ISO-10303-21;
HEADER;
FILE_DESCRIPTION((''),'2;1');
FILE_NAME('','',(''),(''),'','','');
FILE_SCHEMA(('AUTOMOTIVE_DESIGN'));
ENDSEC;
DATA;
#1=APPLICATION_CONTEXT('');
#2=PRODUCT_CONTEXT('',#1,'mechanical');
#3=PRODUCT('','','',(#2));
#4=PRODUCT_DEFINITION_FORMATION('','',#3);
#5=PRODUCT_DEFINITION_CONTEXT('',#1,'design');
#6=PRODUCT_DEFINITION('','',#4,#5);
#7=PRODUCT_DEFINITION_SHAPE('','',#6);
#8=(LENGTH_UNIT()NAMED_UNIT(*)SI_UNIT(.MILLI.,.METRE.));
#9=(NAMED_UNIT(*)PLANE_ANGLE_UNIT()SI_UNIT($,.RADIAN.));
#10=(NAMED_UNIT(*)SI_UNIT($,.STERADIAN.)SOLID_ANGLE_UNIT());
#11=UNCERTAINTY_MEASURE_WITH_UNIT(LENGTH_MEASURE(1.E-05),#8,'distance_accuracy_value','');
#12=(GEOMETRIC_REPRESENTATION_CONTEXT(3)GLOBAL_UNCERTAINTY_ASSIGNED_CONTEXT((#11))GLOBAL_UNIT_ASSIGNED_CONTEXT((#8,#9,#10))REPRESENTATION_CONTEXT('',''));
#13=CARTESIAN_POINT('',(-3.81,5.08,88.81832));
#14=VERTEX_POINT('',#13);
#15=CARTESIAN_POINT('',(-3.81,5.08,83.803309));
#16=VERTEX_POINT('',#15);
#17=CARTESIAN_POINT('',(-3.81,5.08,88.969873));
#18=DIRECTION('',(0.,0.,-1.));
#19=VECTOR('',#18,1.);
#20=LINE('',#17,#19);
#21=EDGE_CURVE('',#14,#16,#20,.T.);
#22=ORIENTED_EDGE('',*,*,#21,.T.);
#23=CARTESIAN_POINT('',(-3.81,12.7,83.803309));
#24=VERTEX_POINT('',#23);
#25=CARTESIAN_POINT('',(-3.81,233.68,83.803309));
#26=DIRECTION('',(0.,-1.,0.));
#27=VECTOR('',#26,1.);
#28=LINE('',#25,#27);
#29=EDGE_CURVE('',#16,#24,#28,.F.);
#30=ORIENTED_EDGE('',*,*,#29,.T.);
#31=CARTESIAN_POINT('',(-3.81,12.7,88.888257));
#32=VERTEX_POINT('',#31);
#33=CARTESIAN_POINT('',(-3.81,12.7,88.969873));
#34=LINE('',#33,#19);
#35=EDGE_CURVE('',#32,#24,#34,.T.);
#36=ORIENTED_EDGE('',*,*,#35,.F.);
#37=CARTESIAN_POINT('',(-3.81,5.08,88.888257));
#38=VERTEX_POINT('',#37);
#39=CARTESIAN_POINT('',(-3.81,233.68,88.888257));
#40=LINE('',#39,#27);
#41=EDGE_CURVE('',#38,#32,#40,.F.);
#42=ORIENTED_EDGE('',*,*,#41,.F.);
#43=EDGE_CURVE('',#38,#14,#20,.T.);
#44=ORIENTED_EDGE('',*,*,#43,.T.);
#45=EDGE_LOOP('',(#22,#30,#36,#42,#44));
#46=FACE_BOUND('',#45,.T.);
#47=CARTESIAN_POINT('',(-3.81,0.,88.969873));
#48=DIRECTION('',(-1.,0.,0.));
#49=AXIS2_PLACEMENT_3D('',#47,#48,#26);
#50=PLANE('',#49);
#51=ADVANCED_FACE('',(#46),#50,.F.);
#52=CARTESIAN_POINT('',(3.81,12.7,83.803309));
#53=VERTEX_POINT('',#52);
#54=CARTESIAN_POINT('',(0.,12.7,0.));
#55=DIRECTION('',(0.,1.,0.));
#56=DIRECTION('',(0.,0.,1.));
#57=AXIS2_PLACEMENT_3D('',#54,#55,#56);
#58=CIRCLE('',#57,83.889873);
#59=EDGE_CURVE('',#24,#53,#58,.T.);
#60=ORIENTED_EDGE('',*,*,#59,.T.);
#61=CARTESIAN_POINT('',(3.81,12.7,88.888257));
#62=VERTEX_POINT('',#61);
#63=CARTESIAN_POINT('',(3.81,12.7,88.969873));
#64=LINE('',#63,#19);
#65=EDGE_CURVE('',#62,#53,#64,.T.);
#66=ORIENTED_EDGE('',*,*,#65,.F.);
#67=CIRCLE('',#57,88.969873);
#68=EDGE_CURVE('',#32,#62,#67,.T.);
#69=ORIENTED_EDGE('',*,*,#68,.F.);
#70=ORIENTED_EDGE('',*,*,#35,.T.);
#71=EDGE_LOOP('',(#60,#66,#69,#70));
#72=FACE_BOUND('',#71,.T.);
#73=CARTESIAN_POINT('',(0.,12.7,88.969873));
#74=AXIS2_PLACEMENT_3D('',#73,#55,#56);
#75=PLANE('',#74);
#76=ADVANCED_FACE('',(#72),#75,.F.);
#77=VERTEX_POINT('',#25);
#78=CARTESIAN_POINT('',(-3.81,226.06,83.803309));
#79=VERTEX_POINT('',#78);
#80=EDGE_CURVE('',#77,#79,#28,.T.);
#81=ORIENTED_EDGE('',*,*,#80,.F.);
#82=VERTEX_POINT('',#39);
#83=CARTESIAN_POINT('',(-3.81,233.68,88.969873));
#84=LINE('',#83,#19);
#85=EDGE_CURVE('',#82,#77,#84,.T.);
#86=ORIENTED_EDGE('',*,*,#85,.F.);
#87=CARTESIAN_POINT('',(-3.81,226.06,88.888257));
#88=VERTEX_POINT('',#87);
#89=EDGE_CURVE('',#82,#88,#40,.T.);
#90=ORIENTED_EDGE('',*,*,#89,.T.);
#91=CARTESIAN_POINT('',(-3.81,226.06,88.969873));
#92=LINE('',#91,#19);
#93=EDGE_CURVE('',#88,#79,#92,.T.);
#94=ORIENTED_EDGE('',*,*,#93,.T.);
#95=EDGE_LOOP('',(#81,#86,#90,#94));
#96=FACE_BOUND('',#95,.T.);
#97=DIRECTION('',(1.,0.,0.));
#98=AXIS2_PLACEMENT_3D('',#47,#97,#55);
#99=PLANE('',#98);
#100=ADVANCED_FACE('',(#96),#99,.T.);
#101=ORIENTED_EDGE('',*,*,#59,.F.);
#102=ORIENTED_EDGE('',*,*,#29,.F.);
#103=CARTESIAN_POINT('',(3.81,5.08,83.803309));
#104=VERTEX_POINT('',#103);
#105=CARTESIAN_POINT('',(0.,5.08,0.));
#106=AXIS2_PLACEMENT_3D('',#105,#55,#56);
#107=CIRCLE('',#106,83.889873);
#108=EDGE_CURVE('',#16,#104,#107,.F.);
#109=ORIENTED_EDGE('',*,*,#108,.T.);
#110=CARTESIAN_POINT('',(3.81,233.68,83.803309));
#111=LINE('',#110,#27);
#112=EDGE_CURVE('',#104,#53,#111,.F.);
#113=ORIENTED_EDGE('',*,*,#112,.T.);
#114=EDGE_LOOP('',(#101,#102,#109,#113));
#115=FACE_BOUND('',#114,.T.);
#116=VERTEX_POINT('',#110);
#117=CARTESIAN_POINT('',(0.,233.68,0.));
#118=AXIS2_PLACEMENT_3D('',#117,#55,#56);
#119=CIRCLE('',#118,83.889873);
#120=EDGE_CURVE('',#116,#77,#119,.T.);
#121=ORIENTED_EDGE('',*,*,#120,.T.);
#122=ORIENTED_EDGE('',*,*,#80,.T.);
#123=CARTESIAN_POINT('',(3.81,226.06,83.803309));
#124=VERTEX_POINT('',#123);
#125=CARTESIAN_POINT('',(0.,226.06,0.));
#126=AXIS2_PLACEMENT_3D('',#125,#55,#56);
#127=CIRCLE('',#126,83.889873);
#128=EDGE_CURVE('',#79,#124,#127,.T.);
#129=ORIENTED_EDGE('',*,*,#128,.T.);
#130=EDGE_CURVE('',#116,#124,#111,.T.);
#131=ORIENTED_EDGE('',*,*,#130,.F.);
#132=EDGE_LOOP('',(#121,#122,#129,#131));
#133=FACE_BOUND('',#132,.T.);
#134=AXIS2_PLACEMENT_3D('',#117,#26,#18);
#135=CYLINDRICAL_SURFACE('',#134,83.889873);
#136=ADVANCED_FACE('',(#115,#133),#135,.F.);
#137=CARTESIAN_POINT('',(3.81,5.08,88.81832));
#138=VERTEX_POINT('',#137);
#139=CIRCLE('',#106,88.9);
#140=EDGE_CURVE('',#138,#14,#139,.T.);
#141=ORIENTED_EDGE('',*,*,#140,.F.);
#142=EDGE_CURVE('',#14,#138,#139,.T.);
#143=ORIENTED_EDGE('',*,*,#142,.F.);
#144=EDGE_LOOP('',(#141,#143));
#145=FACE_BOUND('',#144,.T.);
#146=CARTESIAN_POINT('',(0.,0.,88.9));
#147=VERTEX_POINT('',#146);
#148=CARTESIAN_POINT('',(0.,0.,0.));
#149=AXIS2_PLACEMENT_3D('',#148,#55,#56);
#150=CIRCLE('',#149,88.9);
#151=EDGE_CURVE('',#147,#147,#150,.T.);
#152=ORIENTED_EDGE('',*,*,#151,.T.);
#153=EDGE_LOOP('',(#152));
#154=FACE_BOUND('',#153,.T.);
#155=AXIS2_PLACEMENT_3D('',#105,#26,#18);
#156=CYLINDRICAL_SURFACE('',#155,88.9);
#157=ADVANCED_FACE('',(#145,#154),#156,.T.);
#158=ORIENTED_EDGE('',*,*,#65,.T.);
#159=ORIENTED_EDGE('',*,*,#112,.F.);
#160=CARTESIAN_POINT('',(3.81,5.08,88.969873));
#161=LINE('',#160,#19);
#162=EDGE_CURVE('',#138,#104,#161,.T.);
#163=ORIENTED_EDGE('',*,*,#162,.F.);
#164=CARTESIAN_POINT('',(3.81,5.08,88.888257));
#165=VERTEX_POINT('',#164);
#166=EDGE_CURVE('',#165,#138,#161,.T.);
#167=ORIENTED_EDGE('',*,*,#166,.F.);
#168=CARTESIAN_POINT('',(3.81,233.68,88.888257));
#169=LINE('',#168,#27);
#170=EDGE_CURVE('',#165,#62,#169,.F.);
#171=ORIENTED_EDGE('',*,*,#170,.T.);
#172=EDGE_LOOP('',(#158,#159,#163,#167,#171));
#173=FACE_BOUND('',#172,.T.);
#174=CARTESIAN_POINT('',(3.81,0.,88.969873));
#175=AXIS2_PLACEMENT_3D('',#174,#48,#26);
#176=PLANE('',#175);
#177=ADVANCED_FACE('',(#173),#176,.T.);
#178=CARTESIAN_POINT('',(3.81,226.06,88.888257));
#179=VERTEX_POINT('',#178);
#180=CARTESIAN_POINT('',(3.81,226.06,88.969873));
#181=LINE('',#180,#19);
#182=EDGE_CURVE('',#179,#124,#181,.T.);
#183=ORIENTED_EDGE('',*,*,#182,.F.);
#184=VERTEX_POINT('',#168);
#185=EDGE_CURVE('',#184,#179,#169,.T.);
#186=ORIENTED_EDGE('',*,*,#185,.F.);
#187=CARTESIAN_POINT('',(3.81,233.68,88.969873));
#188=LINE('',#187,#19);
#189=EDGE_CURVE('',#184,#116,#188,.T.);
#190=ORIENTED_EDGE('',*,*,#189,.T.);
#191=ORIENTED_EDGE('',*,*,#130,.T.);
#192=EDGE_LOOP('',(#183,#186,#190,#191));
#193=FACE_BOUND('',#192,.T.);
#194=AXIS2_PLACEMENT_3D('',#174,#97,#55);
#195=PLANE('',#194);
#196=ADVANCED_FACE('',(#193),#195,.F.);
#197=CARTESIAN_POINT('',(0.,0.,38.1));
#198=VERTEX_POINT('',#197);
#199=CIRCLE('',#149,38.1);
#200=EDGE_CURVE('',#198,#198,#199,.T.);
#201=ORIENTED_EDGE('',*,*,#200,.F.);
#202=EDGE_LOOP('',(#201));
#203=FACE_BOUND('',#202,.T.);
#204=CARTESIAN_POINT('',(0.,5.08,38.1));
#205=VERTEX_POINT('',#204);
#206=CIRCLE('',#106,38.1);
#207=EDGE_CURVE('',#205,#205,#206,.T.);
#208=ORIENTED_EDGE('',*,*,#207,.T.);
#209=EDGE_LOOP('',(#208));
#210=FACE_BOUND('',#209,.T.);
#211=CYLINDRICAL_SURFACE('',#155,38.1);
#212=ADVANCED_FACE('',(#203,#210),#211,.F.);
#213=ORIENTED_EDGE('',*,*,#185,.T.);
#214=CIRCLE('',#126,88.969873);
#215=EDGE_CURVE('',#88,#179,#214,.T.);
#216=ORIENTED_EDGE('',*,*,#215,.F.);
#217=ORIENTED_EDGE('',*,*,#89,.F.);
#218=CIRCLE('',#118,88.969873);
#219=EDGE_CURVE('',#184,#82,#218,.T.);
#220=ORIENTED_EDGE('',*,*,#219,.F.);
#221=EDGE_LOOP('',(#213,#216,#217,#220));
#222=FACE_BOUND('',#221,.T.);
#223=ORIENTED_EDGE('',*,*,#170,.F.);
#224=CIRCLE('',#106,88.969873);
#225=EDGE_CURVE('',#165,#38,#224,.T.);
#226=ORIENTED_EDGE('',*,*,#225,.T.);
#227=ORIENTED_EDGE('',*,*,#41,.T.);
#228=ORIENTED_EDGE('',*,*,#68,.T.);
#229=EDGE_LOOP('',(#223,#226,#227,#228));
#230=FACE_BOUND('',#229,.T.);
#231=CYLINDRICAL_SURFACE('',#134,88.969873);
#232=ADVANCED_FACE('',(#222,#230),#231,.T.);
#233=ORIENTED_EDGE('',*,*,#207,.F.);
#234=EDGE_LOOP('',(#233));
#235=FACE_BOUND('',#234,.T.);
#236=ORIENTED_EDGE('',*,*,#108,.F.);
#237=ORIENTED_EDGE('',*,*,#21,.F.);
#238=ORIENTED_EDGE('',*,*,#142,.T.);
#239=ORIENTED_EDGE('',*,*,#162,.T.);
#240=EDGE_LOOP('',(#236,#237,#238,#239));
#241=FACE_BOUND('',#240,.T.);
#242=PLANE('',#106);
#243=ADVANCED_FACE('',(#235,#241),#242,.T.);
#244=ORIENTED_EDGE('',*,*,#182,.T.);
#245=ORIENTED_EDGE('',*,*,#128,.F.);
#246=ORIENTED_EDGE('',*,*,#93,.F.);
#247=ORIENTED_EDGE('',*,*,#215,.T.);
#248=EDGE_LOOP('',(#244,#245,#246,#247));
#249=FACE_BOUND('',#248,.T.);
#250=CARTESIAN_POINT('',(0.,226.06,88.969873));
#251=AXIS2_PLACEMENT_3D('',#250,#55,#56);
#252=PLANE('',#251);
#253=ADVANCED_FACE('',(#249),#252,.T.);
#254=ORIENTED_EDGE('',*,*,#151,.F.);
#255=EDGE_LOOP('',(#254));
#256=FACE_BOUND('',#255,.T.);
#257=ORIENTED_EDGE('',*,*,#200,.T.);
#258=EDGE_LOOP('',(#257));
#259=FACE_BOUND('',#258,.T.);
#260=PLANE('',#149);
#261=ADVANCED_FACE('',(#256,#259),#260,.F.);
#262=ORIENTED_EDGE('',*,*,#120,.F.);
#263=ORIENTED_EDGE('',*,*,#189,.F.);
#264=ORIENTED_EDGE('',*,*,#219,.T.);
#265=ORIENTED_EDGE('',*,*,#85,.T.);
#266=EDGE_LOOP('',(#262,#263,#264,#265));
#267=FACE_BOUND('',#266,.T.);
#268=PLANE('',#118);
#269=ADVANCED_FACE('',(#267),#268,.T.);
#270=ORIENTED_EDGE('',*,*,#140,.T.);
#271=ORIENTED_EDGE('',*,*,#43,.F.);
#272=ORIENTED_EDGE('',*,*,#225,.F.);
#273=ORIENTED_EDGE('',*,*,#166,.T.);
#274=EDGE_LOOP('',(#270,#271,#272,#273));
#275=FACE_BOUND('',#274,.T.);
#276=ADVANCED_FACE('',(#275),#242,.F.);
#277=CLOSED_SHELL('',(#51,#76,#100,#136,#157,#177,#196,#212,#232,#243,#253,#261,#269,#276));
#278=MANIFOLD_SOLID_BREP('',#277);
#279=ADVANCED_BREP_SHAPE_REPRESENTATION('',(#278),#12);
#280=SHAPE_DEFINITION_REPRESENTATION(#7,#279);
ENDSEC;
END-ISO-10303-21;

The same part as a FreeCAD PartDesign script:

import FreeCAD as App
import Part
import Sketcher

V = App.Vector
Q = App.Units.Quantity


def add_polygon(sketch, points):
    """Adds a closed chain of lines whose ends are joined by coincident constraints."""
    first, n = sketch.GeometryCount, len(points)
    for a, b in zip(points, points[1:] + points[:1]):
        sketch.addGeometry(Part.LineSegment(App.Vector(*a, 0), App.Vector(*b, 0)), False)
    for i in range(n):
        sketch.addConstraint(Sketcher.Constraint("Coincident", first + i, 2, first + (i + 1) % n, 1))

doc = App.newDocument("Part")
body = doc.addObject("PartDesign::Body", "Body")

sketch1 = body.newObject("Sketcher::SketchObject", "Sketch")
sketch1.AttachmentSupport = (doc.getObject("XZ_Plane"), [""])
sketch1.MapMode = "FlatFace"
sketch1.addGeometry([
    Part.Circle(V(0, 0, 0), V(0, 0, 1), 88.9),
    Part.Circle(V(0, 0, 0), V(0, 0, 1), 38.1),
], False)
sketch1.addConstraint([
    Sketcher.Constraint("Coincident", 0, 3, -1, 1),
    Sketcher.Constraint("Coincident", 1, 3, -1, 1),
    Sketcher.Constraint("Diameter", 0, Q("7 in")),
    Sketcher.Constraint("Diameter", 1, Q("3 in")),
])
pad1 = body.newObject("PartDesign::Pad", "Pad")
pad1.Profile = sketch1
pad1.Length = Q("0.2 in")
pad1.Reversed = True

sketch2 = body.newObject("Sketcher::SketchObject", "Sketch001")
sketch2.AttachmentSupport = (doc.getObject("XZ_Plane"), [""])
sketch2.MapMode = "FlatFace"
sketch2.AttachmentOffset = App.Placement(V(0, 0, -0.2 * 25.4), App.Rotation())
sketch2.addGeometry([
    Part.Circle(V(0, 0, 0), V(0, 0, 1), 88.969873),
    Part.Circle(V(0, 0, 0), V(0, 0, 1), 83.889873),
], False)
sketch2.addConstraint([
    Sketcher.Constraint("Coincident", 0, 3, -1, 1),
    Sketcher.Constraint("Coincident", 1, 3, -1, 1),
    Sketcher.Constraint("Diameter", 0, 177.939746),
    Sketcher.Constraint("Diameter", 1, 167.779746),
])
pad2 = body.newObject("PartDesign::Pad", "Pad001")
pad2.Profile = sketch2
pad2.Length = Q("9 in")
pad2.Reversed = True

sketch3 = body.newObject("Sketcher::SketchObject", "Sketch002")
sketch3.AttachmentSupport = (doc.getObject("XY_Plane"), [""])
sketch3.MapMode = "FlatFace"
add_polygon(sketch3, [(-3.81, 233.68), (-3.81, 226.06), (3.81, 226.06), (3.81, 233.68)])
add_polygon(sketch3, [(-3.81, 12.7), (-3.81, 5.08), (3.81, 5.08), (3.81, 12.7)])
sketch3.addConstraint([
    Sketcher.Constraint("Vertical", 0),
    Sketcher.Constraint("Horizontal", 1),
    Sketcher.Constraint("Vertical", 2),
    Sketcher.Constraint("Horizontal", 3),
    Sketcher.Constraint("Vertical", 4),
    Sketcher.Constraint("Horizontal", 5),
    Sketcher.Constraint("Vertical", 6),
    Sketcher.Constraint("Horizontal", 7),
    Sketcher.Constraint("Vertical", 3, 2, 4, 2),
    Sketcher.Constraint("Vertical", 2, 2, 5, 2),
    Sketcher.Constraint("Equal", 7, 0),
    Sketcher.Constraint("Equal", 2, 4),
    Sketcher.Constraint("DistanceX", 1, 1, 1, 2, Q("0.3 in")),
    Sketcher.Constraint("DistanceY", 4, 2, 3, 2, Q("9 in")),
    Sketcher.Constraint("DistanceY", -1, 1, 0, 2, Q("8.9 in")),
    Sketcher.Constraint("DistanceX", 0, 2, -1, 1, Q("0.15 in")),
])
pocket1 = body.newObject("PartDesign::Pocket", "Pocket")
pocket1.Profile = sketch3
pocket1.Type = "ThroughAll"
pocket1.Reversed = True

doc.recompute()
